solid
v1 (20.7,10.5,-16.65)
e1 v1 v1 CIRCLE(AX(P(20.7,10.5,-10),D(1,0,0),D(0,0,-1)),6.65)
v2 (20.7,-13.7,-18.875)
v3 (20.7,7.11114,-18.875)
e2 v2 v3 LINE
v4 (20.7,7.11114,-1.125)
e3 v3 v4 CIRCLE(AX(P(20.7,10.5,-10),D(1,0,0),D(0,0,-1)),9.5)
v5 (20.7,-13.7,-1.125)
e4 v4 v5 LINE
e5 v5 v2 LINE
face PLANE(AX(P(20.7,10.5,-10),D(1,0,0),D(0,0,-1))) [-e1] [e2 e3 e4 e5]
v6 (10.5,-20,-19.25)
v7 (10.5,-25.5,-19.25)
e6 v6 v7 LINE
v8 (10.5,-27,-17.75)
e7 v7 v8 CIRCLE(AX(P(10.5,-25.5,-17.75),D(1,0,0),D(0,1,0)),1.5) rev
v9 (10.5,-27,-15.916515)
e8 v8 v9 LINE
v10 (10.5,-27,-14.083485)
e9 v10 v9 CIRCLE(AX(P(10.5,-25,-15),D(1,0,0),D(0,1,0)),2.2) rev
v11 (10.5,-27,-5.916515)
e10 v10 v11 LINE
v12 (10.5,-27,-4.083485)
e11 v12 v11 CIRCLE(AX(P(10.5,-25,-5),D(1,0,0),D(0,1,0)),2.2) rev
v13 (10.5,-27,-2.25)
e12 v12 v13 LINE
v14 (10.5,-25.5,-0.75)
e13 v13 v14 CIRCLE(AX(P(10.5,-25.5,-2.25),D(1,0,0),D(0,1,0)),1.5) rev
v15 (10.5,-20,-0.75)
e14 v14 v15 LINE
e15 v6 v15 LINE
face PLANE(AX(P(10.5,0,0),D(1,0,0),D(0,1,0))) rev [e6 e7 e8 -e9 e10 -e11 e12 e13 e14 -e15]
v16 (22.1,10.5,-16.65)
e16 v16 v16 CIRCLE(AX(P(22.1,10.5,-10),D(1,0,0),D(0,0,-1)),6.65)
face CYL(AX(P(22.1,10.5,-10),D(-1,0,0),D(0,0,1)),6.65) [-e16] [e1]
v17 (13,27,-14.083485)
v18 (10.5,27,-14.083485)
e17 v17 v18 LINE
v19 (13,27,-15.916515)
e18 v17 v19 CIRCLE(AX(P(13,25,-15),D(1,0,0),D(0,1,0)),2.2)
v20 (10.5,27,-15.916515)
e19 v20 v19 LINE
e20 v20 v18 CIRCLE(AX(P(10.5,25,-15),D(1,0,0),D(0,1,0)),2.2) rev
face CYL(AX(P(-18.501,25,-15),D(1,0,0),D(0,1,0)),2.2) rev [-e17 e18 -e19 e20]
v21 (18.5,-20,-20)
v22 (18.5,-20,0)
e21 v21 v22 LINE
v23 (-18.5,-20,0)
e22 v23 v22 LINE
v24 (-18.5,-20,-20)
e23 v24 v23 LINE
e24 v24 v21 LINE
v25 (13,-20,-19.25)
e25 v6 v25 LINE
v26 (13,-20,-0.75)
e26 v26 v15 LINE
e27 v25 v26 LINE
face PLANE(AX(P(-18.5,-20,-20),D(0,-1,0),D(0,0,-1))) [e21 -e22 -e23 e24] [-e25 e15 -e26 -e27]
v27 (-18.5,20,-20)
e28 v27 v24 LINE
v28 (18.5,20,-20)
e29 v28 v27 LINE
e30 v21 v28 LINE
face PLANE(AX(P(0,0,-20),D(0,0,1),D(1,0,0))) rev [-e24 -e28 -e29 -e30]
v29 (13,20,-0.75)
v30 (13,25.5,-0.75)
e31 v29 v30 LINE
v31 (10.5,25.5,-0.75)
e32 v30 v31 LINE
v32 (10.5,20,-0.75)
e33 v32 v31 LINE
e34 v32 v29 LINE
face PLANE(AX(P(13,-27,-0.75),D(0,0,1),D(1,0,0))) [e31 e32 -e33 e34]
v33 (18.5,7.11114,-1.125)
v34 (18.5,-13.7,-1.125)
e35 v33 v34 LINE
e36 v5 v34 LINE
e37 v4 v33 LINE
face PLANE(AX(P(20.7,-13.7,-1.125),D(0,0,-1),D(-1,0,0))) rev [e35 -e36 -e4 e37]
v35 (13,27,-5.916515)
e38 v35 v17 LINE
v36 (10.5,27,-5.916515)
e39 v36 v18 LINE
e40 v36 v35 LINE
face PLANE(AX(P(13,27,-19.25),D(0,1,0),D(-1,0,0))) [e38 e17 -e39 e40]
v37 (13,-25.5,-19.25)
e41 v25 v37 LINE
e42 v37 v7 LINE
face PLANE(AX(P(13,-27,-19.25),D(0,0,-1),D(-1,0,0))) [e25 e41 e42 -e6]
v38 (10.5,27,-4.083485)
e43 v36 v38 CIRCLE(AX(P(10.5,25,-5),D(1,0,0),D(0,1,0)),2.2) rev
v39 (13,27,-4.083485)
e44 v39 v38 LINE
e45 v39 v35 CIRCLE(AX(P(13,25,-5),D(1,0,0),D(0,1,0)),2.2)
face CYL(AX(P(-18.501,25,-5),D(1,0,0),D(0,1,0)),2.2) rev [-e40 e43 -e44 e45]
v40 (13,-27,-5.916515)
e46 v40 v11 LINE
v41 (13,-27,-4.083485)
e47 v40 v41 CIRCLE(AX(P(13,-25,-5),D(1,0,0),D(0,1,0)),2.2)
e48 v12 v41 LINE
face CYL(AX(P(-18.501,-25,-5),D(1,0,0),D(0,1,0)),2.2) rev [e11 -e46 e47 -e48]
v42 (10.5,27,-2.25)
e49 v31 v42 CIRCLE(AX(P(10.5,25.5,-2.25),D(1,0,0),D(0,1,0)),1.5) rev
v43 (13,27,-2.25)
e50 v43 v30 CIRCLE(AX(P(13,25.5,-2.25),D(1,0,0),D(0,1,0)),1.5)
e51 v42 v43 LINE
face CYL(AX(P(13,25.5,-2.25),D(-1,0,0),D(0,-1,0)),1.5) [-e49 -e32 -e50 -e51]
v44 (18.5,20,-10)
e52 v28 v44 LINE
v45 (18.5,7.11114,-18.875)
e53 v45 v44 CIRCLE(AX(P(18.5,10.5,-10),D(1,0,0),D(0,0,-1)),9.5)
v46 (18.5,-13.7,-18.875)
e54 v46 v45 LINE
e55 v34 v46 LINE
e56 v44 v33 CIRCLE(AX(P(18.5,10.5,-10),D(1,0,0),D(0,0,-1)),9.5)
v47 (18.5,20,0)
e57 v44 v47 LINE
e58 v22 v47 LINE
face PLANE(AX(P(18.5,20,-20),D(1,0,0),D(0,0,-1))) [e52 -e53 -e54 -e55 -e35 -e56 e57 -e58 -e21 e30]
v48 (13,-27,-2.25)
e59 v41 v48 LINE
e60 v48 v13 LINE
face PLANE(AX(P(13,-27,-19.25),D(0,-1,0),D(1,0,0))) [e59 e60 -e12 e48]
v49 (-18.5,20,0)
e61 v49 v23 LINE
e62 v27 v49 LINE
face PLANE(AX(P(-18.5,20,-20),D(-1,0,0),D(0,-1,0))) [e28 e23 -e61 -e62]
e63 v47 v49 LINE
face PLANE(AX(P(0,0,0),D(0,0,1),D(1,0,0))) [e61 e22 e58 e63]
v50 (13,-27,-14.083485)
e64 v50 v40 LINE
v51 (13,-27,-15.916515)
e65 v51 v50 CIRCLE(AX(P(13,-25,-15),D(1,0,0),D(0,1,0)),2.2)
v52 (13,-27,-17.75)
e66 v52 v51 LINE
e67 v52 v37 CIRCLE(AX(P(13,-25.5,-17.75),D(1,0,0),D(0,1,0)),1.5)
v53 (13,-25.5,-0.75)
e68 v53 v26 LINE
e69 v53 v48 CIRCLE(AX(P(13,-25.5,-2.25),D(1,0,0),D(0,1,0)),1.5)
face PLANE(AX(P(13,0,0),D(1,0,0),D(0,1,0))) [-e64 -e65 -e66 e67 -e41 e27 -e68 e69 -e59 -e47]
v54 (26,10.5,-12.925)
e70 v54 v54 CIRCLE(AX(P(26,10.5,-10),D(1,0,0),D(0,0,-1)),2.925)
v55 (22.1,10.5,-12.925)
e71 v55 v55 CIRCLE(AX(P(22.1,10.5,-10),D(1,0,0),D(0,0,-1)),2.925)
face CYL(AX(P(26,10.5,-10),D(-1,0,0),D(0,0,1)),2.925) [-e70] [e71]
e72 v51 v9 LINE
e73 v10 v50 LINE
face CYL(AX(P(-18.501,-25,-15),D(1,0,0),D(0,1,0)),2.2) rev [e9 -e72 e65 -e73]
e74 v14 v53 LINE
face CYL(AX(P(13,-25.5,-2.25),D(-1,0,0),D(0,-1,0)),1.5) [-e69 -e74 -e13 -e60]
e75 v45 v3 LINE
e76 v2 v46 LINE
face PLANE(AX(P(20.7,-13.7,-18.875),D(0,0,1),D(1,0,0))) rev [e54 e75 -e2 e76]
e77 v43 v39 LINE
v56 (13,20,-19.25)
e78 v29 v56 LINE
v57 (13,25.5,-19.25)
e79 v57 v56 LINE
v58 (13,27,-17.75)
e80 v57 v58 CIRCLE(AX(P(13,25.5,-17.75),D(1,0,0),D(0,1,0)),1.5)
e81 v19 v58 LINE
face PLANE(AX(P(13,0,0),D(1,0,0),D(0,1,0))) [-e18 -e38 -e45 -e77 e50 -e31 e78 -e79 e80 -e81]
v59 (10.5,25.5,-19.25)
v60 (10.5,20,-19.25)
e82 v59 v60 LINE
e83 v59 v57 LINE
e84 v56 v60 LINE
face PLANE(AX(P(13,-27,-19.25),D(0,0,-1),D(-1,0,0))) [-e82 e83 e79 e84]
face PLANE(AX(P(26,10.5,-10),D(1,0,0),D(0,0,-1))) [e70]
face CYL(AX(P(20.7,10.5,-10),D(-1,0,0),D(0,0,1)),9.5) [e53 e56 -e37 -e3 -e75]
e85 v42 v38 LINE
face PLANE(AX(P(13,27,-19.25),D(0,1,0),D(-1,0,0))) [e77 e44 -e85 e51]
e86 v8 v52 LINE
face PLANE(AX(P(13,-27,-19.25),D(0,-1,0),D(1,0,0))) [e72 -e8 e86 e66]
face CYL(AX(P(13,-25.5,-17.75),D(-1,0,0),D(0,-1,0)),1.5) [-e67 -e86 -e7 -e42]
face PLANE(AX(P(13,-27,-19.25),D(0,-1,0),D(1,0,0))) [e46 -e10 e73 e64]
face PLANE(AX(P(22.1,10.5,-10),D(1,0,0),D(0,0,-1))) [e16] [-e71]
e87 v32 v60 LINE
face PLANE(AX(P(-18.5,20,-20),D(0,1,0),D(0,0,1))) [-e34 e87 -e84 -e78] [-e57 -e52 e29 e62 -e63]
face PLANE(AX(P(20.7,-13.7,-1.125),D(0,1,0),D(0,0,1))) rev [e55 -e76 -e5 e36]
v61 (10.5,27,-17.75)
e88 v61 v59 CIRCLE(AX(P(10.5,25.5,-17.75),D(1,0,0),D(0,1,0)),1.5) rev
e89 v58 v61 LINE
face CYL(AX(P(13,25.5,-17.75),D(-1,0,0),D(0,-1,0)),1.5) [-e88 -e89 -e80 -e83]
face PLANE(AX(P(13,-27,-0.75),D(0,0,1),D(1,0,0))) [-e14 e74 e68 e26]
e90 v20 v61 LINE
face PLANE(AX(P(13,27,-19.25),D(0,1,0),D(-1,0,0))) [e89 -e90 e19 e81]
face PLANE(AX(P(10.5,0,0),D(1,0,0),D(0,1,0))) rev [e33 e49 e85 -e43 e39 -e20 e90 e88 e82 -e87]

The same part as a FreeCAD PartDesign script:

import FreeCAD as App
import Part
import Sketcher

V = App.Vector
Q = App.Units.Quantity


def edges_at(feature, points):
    """Names of the edges that pass closest to the given points."""
    edges = feature.Shape.Edges
    near = lambda p: min(range(len(edges)), key=lambda i: edges[i].distToShape(Part.Vertex(*p))[0])
    return sorted({f"Edge{near(p) + 1}" for p in points})


def add_polygon(sketch, points):
    """Adds a closed chain of lines whose ends are joined by coincident constraints."""
    first, n = sketch.GeometryCount, len(points)
    for a, b in zip(points, points[1:] + points[:1]):
        sketch.addGeometry(Part.LineSegment(App.Vector(*a, 0), App.Vector(*b, 0)), False)
    for i in range(n):
        sketch.addConstraint(Sketcher.Constraint("Coincident", first + i, 2, first + (i + 1) % n, 1))

doc = App.newDocument("Part")
body = doc.addObject("PartDesign::Body", "Body")

# Sketch on XY plane
sketch1 = doc.addObject("Sketcher::SketchObject", "Sketch")
body.addObject(sketch1)
sketch1.AttachmentSupport = (doc.XY_Plane, [""])
sketch1.MapMode = "FlatFace"
add_polygon(sketch1, [(-18.5, 20), (-18.5, -20), (18.5, -20), (18.5, 20)])  # lines 0-3
sketch1.addConstraint([
    Sketcher.Constraint("Vertical", 0),
    Sketcher.Constraint("Horizontal", 1),
    Sketcher.Constraint("Vertical", 2),
    Sketcher.Constraint("Horizontal", 3),
    Sketcher.Constraint("Symmetric", 0, 2, 2, 2, -1, 1),
    Sketcher.Constraint("DistanceX", 1, 1, 1, 2, Q("37 mm")),
    Sketcher.Constraint("DistanceY", 0, 2, 0, 1, Q("40 mm")),
])
pad1 = doc.addObject("PartDesign::Pad", "Pad")
body.addObject(pad1)
pad1.Profile = sketch1
pad1.Length = 20
pad1.Reversed = True

# Sketch on YZ plane
sketch2 = doc.addObject("Sketcher::SketchObject", "Sketch001")
body.addObject(sketch2)
sketch2.AttachmentSupport = (doc.YZ_Plane, [""])
sketch2.MapMode = "FlatFace"
sketch2.AttachmentOffset = App.Placement(V(0, 0, 10.5), App.Rotation())
add_polygon(sketch2, [(27, -19.25), (-27, -19.25), (-27, -0.75), (27, -0.75)])  # lines 0-3
sketch2.addConstraint([
    Sketcher.Constraint("Horizontal", 0),
    Sketcher.Constraint("Vertical", 1),
    Sketcher.Constraint("Horizontal", 2),
    Sketcher.Constraint("Vertical", 3),
    Sketcher.Constraint("DistanceX", 0, 2, 0, 1, Q("54 mm")),
    Sketcher.Constraint("DistanceY", 1, 1, 1, 2, Q("18.5 mm")),
    Sketcher.Constraint("DistanceX", 0, 2, -1, 1, Q("27 mm")),
    Sketcher.Constraint("DistanceY", 0, 2, -1, 1, Q("19.25 mm")),
])
pad2 = doc.addObject("PartDesign::Pad", "Pad001")
body.addObject(pad2)
pad2.Profile = sketch2
pad2.Length = 2.5
doc.recompute()

fillet = doc.addObject("PartDesign::Fillet", "Fillet")
body.addObject(fillet)
fillet.Base = (pad2, edges_at(pad2, [
    (11.75, -27, -19.25),
    (11.75, 27, -0.75),
    (11.75, -27, -0.75),
    (11.75, 27, -19.25),
]))
fillet.Radius = 1.5

# Sketch on YZ plane
sketch3 = doc.addObject("Sketcher::SketchObject", "Sketch002")
body.addObject(sketch3)
sketch3.AttachmentSupport = (doc.YZ_Plane, [""])
sketch3.MapMode = "FlatFace"
sketch3.AttachmentOffset = App.Placement(V(0, 0, 13), App.Rotation())
sketch3.addGeometry(Part.Circle(V(25, -5, 0), V(0, 0, 1), 2.2), False)
sketch3.addConstraint([
    Sketcher.Constraint("Diameter", 0, Q("4.4 mm")),
    Sketcher.Constraint("DistanceX", -1, 1, 0, 3, Q("25 mm")),
    Sketcher.Constraint("DistanceY", 0, 3, -1, 1, Q("5 mm")),
])
pocket1 = doc.addObject("PartDesign::Pocket", "Pocket")
body.addObject(pocket1)
pocket1.Profile = sketch3
pocket1.Type = "UpToFirst"

# Sketch on YZ plane
sketch4 = doc.addObject("Sketcher::SketchObject", "Sketch003")
body.addObject(sketch4)
sketch4.AttachmentSupport = (doc.YZ_Plane, [""])
sketch4.MapMode = "FlatFace"
sketch4.AttachmentOffset = App.Placement(V(0, 0, 13), App.Rotation())
sketch4.addGeometry(Part.Circle(V(25, -15, 0), V(0, 0, 1), 2.2), False)
sketch4.addConstraint([
    Sketcher.Constraint("Diameter", 0, Q("4.4 mm")),
    Sketcher.Constraint("DistanceX", -1, 1, 0, 3, Q("25 mm")),
    Sketcher.Constraint("DistanceY", 0, 3, -1, 1, Q("15 mm")),
])
pocket2 = doc.addObject("PartDesign::Pocket", "Pocket001")
body.addObject(pocket2)
pocket2.Profile = sketch4
pocket2.Type = "UpToFirst"

# Sketch on YZ plane
sketch5 = doc.addObject("Sketcher::SketchObject", "Sketch004")
body.addObject(sketch5)
sketch5.AttachmentSupport = (doc.YZ_Plane, [""])
sketch5.MapMode = "FlatFace"
sketch5.AttachmentOffset = App.Placement(V(0, 0, 13), App.Rotation())
sketch5.addGeometry(Part.Circle(V(-25, -5, 0), V(0, 0, 1), 2.2), False)
sketch5.addConstraint([
    Sketcher.Constraint("Diameter", 0, Q("4.4 mm")),
    Sketcher.Constraint("DistanceX", 0, 3, -1, 1, Q("25 mm")),
    Sketcher.Constraint("DistanceY", 0, 3, -1, 1, Q("5 mm")),
])
pocket3 = doc.addObject("PartDesign::Pocket", "Pocket002")
body.addObject(pocket3)
pocket3.Profile = sketch5
pocket3.Type = "UpToFirst"

# Sketch on YZ plane
sketch6 = doc.addObject("Sketcher::SketchObject", "Sketch005")
body.addObject(sketch6)
sketch6.AttachmentSupport = (doc.YZ_Plane, [""])
sketch6.MapMode = "FlatFace"
sketch6.AttachmentOffset = App.Placement(V(0, 0, 13), App.Rotation())
sketch6.addGeometry(Part.Circle(V(-25, -15, 0), V(0, 0, 1), 2.2), False)
sketch6.addConstraint([
    Sketcher.Constraint("Diameter", 0, Q("4.4 mm")),
    Sketcher.Constraint("DistanceX", 0, 3, -1, 1, Q("25 mm")),
    Sketcher.Constraint("DistanceY", 0, 3, -1, 1, Q("15 mm")),
])
pocket4 = doc.addObject("PartDesign::Pocket", "Pocket003")
body.addObject(pocket4)
pocket4.Profile = sketch6
pocket4.Type = "UpToFirst"

# Sketch on YZ plane
sketch7 = doc.addObject("Sketcher::SketchObject", "Sketch006")
body.addObject(sketch7)
sketch7.AttachmentSupport = (doc.YZ_Plane, [""])
sketch7.MapMode = "FlatFace"
sketch7.AttachmentOffset = App.Placement(V(0, 0, 18.5), App.Rotation())
sketch7.addGeometry(Part.Circle(V(10.5, -10, 0), V(0, 0, 1), 9.5), False)
sketch7.addConstraint([
    Sketcher.Constraint("Diameter", 0, Q("19 mm")),
    Sketcher.Constraint("DistanceY", 0, 3, -1, 1, Q("10 mm")),
    Sketcher.Constraint("DistanceX", -1, 1, 0, 3, Q("10.5 mm")),
])
pad3 = doc.addObject("PartDesign::Pad", "Pad002")
body.addObject(pad3)
pad3.Profile = sketch7
pad3.Length = 2.2

# Sketch on YZ plane
sketch8 = doc.addObject("Sketcher::SketchObject", "Sketch007")
body.addObject(sketch8)
sketch8.AttachmentSupport = (doc.YZ_Plane, [""])
sketch8.MapMode = "FlatFace"
sketch8.AttachmentOffset = App.Placement(V(0, 0, 18.5), App.Rotation())
add_polygon(sketch8, [(10.104167, -1.125), (-13.7, -1.125), (-13.7, -18.875), (10.104167, -18.875)])  # lines 0-3
sketch8.addConstraint([
    Sketcher.Constraint("Horizontal", 0),
    Sketcher.Constraint("Vertical", 1),
    Sketcher.Constraint("Horizontal", 2),
    Sketcher.Constraint("Vertical", 3),
    Sketcher.Constraint("DistanceY", 1, 2, 1, 1, Q("17.75 mm")),
    Sketcher.Constraint("DistanceX", 0, 2, -1, 1, Q("13.7 mm")),
    Sketcher.Constraint("DistanceY", 0, 2, -1, 1, Q("1.125 mm")),
    Sketcher.Constraint("DistanceX", 0, 2, 0, 1, Q("23.804167 mm")),
])
pad4 = doc.addObject("PartDesign::Pad", "Pad003")
body.addObject(pad4)
pad4.Profile = sketch8
pad4.Length = 2.2

# Sketch on YZ plane
sketch9 = doc.addObject("Sketcher::SketchObject", "Sketch008")
body.addObject(sketch9)
sketch9.AttachmentSupport = (doc.YZ_Plane, [""])
sketch9.MapMode = "FlatFace"
sketch9.AttachmentOffset = App.Placement(V(0, 0, 20.7), App.Rotation())
sketch9.addGeometry(Part.Circle(V(10.5, -10, 0), V(0, 0, 1), 6.65), False)
sketch9.addConstraint([
    Sketcher.Constraint("Diameter", 0, Q("13.3 mm")),
    Sketcher.Constraint("DistanceY", 0, 3, -1, 1, Q("10 mm")),
    Sketcher.Constraint("DistanceX", -1, 1, 0, 3, Q("10.5 mm")),
])
pad5 = doc.addObject("PartDesign::Pad", "Pad004")
body.addObject(pad5)
pad5.Profile = sketch9
pad5.Length = 1.4

# Sketch on YZ plane
sketch10 = doc.addObject("Sketcher::SketchObject", "Sketch009")
body.addObject(sketch10)
sketch10.AttachmentSupport = (doc.YZ_Plane, [""])
sketch10.MapMode = "FlatFace"
sketch10.AttachmentOffset = App.Placement(V(0, 0, 22.1), App.Rotation())
sketch10.addGeometry(Part.Circle(V(10.5, -10, 0), V(0, 0, 1), 2.925), False)
sketch10.addConstraint([
    Sketcher.Constraint("Diameter", 0, Q("5.85 mm")),
    Sketcher.Constraint("DistanceY", 0, 3, -1, 1, Q("10 mm")),
    Sketcher.Constraint("DistanceX", -1, 1, 0, 3, Q("10.5 mm")),
])
pad6 = doc.addObject("PartDesign::Pad", "Pad005")
body.addObject(pad6)
pad6.Profile = sketch10
pad6.Length = 3.9

doc.recompute()
